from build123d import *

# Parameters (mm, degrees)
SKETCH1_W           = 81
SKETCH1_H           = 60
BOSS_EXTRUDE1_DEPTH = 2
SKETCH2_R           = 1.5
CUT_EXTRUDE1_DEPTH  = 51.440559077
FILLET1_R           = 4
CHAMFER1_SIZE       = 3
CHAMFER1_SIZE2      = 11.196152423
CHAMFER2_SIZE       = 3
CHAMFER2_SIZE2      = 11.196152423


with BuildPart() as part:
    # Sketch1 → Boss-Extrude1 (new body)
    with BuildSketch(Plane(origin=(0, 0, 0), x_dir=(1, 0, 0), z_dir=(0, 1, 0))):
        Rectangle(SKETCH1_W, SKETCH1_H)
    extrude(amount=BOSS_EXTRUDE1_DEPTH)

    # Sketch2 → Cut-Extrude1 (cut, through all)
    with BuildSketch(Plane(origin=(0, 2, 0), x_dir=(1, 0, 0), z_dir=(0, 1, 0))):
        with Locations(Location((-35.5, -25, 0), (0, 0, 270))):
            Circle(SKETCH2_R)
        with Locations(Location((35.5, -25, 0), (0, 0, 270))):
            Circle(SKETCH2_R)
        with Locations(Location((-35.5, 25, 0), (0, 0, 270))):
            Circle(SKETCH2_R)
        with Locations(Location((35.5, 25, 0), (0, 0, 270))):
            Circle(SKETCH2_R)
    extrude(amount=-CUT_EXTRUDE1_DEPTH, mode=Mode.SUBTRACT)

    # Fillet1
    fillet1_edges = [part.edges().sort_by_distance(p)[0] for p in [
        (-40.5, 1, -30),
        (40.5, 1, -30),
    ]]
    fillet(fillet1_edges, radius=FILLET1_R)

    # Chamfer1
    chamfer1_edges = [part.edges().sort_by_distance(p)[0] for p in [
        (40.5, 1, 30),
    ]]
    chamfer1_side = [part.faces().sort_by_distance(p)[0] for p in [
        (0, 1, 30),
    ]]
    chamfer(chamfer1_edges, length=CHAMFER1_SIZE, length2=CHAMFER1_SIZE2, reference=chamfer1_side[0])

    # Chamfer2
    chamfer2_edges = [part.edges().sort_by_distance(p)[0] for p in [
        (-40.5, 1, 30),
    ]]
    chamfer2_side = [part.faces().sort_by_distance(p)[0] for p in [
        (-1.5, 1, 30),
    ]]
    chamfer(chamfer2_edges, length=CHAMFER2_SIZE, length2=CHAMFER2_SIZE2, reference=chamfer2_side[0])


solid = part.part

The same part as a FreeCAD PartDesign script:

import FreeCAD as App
import Part
import Sketcher
from FreeCAD import Vector


def edges_at(feature, points):
    """Names of the edges that pass closest to the given points."""
    edges = feature.Shape.Edges
    near = lambda p: min(range(len(edges)), key=lambda i: edges[i].distToShape(Part.Vertex(*p))[0])
    return sorted({f"Edge{near(p) + 1}" for p in points})

doc = App.newDocument("Part")
body = doc.addObject("PartDesign::Body", "Body")

sketch1 = body.newObject("Sketcher::SketchObject", "Sketch")
sketch1.AttachmentSupport = (doc.getObject("XZ_Plane"), [""])
sketch1.MapMode = "FlatFace"
sketch1.addGeometry(Part.LineSegment(Vector(-40, -30, 0), Vector(-40, 30, 0)), False)
sketch1.addGeometry(Part.LineSegment(Vector(-40, 30, 0), Vector(40, 30, 0)), False)
sketch1.addGeometry(Part.LineSegment(Vector(40, 30, 0), Vector(40, -30, 0)), False)
sketch1.addGeometry(Part.LineSegment(Vector(40, -30, 0), Vector(-40, -30, 0)), False)
sketch1.addConstraint(Sketcher.Constraint("Coincident", 0, 2, 1, 1))
sketch1.addConstraint(Sketcher.Constraint("Coincident", 1, 2, 2, 1))
sketch1.addConstraint(Sketcher.Constraint("Coincident", 2, 2, 3, 1))
sketch1.addConstraint(Sketcher.Constraint("Coincident", 3, 2, 0, 1))
sketch1.addConstraint(Sketcher.Constraint("Vertical", 0))
sketch1.addConstraint(Sketcher.Constraint("Horizontal", 1))
sketch1.addConstraint(Sketcher.Constraint("Vertical", 2))
sketch1.addConstraint(Sketcher.Constraint("Horizontal", 3))
sketch1.addConstraint(Sketcher.Constraint("Symmetric", 0, 2, 2, 2, -1, 1))
sketch1.addConstraint(Sketcher.Constraint("DistanceX", 1, 1, 1, 2, 81.0))
sketch1.addConstraint(Sketcher.Constraint("DistanceY", 0, 1, 0, 2, 60.0))
pad1 = body.newObject("PartDesign::Pad", "Pad")
pad1.Profile = sketch1
pad1.Length = 2
pad1.Reversed = True

sketch2 = body.newObject("Sketcher::SketchObject", "Sketch001")
sketch2.AttachmentSupport = (doc.getObject("XZ_Plane"), [""])
sketch2.MapMode = "FlatFace"
sketch2.AttachmentOffset = App.Placement(Vector(0, 0, -2), App.Rotation())
sketch2.addGeometry(Part.Circle(Vector(-35.5, 25, 0), Vector(0, 0, 1), 1.5), False)
sketch2.addGeometry(Part.Circle(Vector(35.5, 25, 0), Vector(0, 0, 1), 1.5), False)
sketch2.addGeometry(Part.Circle(Vector(-35.5, -25, 0), Vector(0, 0, 1), 1.5), False)
sketch2.addGeometry(Part.Circle(Vector(35.5, -25, 0), Vector(0, 0, 1), 1.5), False)
sketch2.addConstraint(Sketcher.Constraint("Equal", 0, 1))
sketch2.addConstraint(Sketcher.Constraint("Equal", 1, 2))
sketch2.addConstraint(Sketcher.Constraint("Equal", 2, 3))
sketch2.addConstraint(Sketcher.Constraint("Symmetric", 1, 3, 2, 3, -1, 1))
sketch2.addConstraint(Sketcher.Constraint("Symmetric", 0, 3, 3, 3, -1, 1))
sketch2.addConstraint(Sketcher.Constraint("Symmetric", 0, 3, 1, 3, -2))
sketch2.addConstraint(Sketcher.Constraint("Diameter", 0, 3.0))
sketch2.addConstraint(Sketcher.Constraint("DistanceY", -1, 1, 0, 3, 25.0))
sketch2.addConstraint(Sketcher.Constraint("DistanceX", 0, 3, 1, 3, 71.0))
pocket1 = body.newObject("PartDesign::Pocket", "Pocket")
pocket1.Profile = sketch2
pocket1.Type = "ThroughAll"
pocket1.Reversed = True
doc.recompute()

fillet = body.newObject("PartDesign::Fillet", "Fillet")
fillet.Base = (pocket1, edges_at(pocket1, [(-40.5, 1, -30), (40.5, 1, -30)]))
fillet.Radius = 4
doc.recompute()

chamfer = body.newObject("PartDesign::Chamfer", "Chamfer")
chamfer.Base = (fillet, edges_at(fillet, [(40.5, 1, 30)]))
chamfer.ChamferType = "Two distances"
chamfer.Size = 3
chamfer.Size2 = 11.196152
doc.recompute()

chamfer2 = body.newObject("PartDesign::Chamfer", "Chamfer001")
chamfer2.Base = (chamfer, edges_at(chamfer, [(-40.5, 1, 30)]))
chamfer2.ChamferType = "Two distances"
chamfer2.Size = 3
chamfer2.Size2 = 11.196152

doc.recompute()
